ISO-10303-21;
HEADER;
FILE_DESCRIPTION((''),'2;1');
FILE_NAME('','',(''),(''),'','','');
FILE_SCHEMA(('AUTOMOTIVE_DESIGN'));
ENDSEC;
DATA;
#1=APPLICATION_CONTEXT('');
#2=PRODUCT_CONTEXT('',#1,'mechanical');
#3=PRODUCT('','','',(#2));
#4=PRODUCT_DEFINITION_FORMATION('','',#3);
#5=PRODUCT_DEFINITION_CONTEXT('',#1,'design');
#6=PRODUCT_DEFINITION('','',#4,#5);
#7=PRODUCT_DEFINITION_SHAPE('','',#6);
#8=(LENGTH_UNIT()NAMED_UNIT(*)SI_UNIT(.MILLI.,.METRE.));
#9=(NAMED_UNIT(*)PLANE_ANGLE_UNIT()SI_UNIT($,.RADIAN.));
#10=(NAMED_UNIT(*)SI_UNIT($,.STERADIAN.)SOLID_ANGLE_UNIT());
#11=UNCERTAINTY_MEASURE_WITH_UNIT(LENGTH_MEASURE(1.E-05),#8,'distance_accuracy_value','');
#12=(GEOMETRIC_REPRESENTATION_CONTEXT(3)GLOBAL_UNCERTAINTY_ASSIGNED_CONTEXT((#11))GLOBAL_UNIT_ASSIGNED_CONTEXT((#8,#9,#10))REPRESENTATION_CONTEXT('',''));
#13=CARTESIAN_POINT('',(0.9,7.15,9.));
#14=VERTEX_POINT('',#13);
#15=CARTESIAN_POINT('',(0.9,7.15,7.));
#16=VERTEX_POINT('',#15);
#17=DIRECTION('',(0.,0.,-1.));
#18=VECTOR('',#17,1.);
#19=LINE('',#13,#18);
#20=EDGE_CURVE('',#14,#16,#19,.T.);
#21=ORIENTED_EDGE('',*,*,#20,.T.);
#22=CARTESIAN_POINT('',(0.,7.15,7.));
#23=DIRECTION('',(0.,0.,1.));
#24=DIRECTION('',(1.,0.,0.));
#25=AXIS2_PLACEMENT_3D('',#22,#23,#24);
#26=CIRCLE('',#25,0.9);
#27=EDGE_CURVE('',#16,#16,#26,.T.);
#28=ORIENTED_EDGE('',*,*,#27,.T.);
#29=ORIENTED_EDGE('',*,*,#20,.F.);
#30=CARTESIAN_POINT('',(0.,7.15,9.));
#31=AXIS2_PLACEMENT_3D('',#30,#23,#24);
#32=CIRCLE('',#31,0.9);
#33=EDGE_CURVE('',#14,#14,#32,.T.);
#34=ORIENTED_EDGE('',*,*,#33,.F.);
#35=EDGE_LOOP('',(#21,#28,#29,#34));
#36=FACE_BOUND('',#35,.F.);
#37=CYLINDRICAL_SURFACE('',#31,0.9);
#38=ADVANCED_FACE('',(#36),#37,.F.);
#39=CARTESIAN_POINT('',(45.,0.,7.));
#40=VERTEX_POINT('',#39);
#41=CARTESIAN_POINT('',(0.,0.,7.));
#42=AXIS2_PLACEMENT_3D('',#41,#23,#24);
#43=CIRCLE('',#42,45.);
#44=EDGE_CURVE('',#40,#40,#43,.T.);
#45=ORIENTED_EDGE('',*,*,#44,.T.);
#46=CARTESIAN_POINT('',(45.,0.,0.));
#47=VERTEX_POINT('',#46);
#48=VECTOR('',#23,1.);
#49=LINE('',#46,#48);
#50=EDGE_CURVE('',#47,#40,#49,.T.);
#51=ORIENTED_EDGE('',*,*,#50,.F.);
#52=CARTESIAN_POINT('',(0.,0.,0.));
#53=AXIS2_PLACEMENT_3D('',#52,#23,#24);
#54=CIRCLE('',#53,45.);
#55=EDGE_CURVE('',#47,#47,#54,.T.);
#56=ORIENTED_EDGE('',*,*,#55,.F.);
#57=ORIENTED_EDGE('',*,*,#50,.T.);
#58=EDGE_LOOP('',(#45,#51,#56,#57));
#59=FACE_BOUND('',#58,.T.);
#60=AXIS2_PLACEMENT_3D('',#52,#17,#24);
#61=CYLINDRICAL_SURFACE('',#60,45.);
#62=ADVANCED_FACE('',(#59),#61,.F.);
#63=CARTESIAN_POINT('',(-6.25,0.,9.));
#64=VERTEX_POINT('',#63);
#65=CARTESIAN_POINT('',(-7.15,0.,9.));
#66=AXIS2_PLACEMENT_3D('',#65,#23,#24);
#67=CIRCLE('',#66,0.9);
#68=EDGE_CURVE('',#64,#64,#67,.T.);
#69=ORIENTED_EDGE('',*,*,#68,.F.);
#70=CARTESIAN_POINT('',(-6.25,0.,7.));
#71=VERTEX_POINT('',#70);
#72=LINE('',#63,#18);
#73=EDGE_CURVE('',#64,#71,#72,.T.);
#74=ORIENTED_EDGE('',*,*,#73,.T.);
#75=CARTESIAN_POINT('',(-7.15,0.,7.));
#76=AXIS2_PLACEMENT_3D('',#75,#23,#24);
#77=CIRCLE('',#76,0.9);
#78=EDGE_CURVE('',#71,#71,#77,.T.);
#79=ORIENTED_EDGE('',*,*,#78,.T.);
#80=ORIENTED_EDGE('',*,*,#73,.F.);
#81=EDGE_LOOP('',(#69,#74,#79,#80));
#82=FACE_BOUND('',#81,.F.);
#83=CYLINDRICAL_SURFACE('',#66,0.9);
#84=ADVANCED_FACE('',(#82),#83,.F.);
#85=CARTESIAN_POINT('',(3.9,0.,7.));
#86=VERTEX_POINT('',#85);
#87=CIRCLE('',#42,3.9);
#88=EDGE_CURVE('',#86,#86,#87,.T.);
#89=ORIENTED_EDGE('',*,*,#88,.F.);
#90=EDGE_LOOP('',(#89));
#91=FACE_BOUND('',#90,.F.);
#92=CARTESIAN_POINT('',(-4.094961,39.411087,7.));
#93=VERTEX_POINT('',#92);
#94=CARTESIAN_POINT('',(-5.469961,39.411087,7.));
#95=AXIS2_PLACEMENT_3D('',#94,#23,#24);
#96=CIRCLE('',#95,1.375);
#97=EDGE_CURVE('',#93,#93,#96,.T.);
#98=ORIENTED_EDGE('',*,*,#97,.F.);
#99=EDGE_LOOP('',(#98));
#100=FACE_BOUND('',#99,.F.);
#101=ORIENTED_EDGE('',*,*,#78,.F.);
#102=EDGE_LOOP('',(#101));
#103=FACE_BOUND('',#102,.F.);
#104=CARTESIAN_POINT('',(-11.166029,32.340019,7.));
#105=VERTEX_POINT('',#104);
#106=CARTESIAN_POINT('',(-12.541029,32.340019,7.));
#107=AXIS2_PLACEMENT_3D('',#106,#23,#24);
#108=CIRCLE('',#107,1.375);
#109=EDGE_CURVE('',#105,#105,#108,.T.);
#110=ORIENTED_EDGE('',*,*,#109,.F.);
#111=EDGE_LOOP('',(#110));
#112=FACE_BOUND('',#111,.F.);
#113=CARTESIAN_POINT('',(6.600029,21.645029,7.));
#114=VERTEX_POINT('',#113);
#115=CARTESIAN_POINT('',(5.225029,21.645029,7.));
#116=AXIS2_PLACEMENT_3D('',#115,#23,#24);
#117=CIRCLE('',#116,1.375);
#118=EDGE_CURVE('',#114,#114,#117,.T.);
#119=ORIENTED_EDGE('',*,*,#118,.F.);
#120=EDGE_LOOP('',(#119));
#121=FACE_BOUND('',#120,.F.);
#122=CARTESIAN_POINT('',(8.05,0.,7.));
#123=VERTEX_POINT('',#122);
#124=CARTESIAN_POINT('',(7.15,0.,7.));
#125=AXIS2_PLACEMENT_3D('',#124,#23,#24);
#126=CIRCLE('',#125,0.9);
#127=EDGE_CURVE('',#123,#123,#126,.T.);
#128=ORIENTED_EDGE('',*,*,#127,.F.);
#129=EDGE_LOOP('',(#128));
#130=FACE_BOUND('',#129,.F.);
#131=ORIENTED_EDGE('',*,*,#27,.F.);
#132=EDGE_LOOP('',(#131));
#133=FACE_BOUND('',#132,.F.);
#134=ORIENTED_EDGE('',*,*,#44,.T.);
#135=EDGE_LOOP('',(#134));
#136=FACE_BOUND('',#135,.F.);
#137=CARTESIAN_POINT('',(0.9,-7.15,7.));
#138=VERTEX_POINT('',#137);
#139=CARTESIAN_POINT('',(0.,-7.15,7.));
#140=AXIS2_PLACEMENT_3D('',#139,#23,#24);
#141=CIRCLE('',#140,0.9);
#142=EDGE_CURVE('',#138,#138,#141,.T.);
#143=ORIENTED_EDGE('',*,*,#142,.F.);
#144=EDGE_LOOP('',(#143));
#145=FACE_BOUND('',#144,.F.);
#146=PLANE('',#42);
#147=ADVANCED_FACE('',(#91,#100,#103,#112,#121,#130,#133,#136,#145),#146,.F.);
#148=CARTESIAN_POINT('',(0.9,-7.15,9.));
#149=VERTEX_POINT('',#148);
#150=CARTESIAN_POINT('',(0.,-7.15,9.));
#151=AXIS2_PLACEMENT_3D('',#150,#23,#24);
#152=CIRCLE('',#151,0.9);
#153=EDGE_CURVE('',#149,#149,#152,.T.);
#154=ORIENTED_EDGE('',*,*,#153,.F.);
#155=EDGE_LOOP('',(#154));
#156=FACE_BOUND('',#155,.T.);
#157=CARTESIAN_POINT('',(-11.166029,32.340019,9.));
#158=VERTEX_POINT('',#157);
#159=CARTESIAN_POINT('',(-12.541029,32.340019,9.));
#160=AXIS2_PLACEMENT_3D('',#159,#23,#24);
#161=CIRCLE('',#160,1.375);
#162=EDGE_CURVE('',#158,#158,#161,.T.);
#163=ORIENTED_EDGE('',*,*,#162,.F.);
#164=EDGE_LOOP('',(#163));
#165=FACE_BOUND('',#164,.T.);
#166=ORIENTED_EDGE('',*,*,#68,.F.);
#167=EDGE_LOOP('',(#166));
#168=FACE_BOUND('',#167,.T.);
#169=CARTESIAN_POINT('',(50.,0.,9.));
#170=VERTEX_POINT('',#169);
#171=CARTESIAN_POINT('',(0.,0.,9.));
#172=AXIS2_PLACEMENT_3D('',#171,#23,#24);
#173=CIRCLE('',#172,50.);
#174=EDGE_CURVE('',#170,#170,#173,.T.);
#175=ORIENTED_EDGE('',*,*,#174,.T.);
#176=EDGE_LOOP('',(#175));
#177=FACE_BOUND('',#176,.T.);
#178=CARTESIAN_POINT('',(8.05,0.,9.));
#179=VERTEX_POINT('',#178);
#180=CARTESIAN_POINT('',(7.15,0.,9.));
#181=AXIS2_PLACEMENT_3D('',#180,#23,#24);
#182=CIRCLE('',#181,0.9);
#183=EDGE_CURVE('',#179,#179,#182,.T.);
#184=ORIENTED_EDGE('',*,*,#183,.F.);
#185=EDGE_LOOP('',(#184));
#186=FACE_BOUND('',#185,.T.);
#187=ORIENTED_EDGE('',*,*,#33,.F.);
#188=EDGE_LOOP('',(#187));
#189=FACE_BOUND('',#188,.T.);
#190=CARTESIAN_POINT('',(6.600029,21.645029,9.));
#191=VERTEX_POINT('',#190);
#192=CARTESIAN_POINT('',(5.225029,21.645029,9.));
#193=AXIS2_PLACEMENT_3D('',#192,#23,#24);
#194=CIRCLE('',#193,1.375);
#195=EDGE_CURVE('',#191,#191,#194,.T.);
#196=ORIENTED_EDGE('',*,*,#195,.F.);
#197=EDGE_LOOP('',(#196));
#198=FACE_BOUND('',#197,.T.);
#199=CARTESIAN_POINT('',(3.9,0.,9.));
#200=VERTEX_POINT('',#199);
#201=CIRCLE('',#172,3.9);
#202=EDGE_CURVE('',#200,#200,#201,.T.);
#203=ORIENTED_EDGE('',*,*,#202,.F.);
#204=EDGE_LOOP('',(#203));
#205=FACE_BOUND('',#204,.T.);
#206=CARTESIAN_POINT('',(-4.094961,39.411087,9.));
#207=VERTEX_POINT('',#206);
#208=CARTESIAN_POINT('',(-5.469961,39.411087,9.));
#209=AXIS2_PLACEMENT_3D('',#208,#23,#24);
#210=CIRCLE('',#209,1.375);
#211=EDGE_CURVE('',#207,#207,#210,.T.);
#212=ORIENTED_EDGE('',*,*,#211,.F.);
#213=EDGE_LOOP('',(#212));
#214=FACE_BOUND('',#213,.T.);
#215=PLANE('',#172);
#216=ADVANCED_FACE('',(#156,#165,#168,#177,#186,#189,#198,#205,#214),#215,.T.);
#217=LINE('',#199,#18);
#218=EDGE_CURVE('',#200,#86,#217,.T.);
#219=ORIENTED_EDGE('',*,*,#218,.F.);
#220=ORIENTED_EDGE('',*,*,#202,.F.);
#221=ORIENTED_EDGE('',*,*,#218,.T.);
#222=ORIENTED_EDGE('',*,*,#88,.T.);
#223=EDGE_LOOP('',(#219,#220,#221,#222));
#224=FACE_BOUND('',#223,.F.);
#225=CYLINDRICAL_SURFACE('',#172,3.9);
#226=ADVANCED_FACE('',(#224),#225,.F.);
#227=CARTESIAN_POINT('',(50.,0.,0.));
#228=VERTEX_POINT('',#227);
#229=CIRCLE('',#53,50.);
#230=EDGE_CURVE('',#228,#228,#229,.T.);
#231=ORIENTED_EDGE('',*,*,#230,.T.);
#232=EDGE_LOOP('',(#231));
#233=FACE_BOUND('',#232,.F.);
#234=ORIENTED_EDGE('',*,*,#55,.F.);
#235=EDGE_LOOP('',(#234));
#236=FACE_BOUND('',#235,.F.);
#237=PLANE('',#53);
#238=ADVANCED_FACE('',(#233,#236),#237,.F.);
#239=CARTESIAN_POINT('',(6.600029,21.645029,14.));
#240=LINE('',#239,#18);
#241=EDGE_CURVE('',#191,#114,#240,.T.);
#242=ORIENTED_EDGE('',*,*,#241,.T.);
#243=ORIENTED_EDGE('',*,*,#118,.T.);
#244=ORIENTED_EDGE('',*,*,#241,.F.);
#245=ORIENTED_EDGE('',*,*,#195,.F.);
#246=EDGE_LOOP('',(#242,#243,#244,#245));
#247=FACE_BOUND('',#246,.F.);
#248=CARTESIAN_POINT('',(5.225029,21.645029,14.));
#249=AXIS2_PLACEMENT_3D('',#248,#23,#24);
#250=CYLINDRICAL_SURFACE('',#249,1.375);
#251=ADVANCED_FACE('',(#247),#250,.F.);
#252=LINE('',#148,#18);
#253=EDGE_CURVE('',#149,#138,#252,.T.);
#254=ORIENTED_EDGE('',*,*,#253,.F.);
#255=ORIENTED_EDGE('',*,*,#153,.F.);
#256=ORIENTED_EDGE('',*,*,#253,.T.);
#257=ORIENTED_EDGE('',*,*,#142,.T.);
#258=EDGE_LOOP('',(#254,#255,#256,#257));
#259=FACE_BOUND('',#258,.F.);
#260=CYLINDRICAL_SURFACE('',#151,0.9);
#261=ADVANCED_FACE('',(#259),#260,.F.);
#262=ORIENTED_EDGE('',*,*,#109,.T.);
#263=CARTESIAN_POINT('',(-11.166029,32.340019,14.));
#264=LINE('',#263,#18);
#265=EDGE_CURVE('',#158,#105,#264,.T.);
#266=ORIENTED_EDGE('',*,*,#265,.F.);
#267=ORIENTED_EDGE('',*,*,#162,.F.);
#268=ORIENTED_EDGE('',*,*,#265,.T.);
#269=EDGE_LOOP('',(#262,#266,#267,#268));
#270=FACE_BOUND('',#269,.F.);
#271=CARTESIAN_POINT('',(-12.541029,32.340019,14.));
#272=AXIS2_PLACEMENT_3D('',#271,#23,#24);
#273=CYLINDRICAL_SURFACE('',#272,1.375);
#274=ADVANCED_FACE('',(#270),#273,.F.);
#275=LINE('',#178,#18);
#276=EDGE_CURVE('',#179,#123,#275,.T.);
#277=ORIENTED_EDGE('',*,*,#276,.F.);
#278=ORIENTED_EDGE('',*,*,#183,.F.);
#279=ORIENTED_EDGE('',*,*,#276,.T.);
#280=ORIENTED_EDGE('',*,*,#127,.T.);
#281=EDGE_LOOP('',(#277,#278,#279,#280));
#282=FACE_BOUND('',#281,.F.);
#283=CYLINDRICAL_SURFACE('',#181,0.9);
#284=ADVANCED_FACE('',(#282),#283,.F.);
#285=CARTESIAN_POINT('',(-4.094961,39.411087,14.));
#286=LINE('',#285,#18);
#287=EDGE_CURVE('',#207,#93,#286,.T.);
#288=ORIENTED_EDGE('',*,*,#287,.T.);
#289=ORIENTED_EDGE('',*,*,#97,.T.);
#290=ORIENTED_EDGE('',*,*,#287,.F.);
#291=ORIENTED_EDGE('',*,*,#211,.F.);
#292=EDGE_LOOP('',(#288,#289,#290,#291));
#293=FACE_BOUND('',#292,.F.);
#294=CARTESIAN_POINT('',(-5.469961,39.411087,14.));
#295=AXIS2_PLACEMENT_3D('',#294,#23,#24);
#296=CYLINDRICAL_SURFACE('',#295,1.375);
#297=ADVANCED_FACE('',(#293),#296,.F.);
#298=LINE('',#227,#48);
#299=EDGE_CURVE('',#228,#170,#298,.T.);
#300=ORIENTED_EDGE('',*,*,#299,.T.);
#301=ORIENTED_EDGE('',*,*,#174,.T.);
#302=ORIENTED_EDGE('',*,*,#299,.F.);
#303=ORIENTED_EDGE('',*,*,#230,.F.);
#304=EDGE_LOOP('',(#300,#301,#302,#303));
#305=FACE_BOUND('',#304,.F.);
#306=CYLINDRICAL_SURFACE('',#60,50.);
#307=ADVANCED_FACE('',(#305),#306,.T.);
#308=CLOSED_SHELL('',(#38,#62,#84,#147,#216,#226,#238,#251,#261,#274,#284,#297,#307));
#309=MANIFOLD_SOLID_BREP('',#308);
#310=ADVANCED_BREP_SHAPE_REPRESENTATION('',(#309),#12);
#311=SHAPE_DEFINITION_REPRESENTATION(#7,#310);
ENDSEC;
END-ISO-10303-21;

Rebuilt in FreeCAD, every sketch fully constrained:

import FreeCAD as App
import Part
import Sketcher
from FreeCAD import Vector

doc = App.newDocument("Part")
body = doc.addObject("PartDesign::Body", "Body")
body.AllowCompound = True

# Sketch on XY plane
sketch1 = body.newObject("Sketcher::SketchObject", "Sketch")
sketch1.AttachmentSupport = (doc.getObject("XY_Plane"), [""])
sketch1.MapMode = "FlatFace"
sketch1.AttachmentOffset = App.Placement(Vector(0, 0, 14), App.Rotation())
sketch1.addGeometry([
    Part.Circle(Vector(-12.541029, 32.340019, 0), Vector(0, 0, 1), 1.375),
    Part.Circle(Vector(-5.469961, 39.411087, 0), Vector(0, 0, 1), 1.375),
    Part.Circle(Vector(5.225029, 21.645029, 0), Vector(0, 0, 1), 1.375),
], False)
sketch1.addConstraint([
    Sketcher.Constraint("Equal", 0, 1),
    Sketcher.Constraint("Equal", 1, 2),
    Sketcher.Constraint("Diameter", 0, 2.75),
    Sketcher.Constraint("DistanceX", 0, 3, -1, 1, 12.541029),
    Sketcher.Constraint("DistanceY", -1, 1, 0, 3, 32.340019),
    Sketcher.Constraint("DistanceX", 1, 3, -1, 1, 5.469961),
    Sketcher.Constraint("DistanceX", -1, 1, 2, 3, 5.225029),
    Sketcher.Constraint("DistanceY", -1, 1, 2, 3, 21.645029),
    Sketcher.Constraint("DistanceY", 0, 3, 1, 3, 7.071068),
])
pad1 = body.newObject("PartDesign::Pad", "Pad")
pad1.Profile = sketch1
pad1.Length = 10
pad1.Reversed = True
body2 = doc.addObject("PartDesign::Body", "Body001")
body2.AllowCompound = True

# Sketch on XY plane
sketch2 = body2.newObject("Sketcher::SketchObject", "Sketch001")
sketch2.AttachmentSupport = (doc.getObject("XY_Plane001"), [""])
sketch2.MapMode = "FlatFace"
sketch2.AttachmentOffset = App.Placement(Vector(0, 0, 9), App.Rotation())
sketch2.addGeometry([
    Part.Circle(Vector(0, 7.15, 0), Vector(0, 0, 1), 0.9),
    Part.Circle(Vector(-7.15, 0, 0), Vector(0, 0, 1), 0.9),
    Part.Circle(Vector(0, -7.15, 0), Vector(0, 0, 1), 0.9),
    Part.Circle(Vector(7.15, 0, 0), Vector(0, 0, 1), 0.9),
], False)
sketch2.addConstraint([
    Sketcher.Constraint("Equal", 0, 1),
    Sketcher.Constraint("Equal", 1, 2),
    Sketcher.Constraint("Equal", 2, 3),
    Sketcher.Constraint("Symmetric", 0, 3, 2, 3, -1, 1),
    Sketcher.Constraint("Symmetric", 1, 3, 3, 3, -1, 1),
    Sketcher.Constraint("PointOnObject", 0, 3, -2),
    Sketcher.Constraint("PointOnObject", 1, 3, -1),
    Sketcher.Constraint("Diameter", 0, 1.8),
    Sketcher.Constraint("DistanceY", 2, 3, 0, 3, 14.3),
    Sketcher.Constraint("DistanceX", 1, 3, 3, 3, 14.3),
])
pad2 = body2.newObject("PartDesign::Pad", "Pad001")
pad2.Profile = sketch2
pad2.Length = 2
pad2.Reversed = True
body3 = doc.addObject("PartDesign::Body", "Body002")

# Sketch on XY plane
sketch3 = body3.newObject("Sketcher::SketchObject", "Sketch002")
sketch3.AttachmentSupport = (doc.getObject("XY_Plane002"), [""])
sketch3.MapMode = "FlatFace"
sketch3.AttachmentOffset = App.Placement(Vector(0, 0, 9), App.Rotation())
sketch3.addGeometry(Part.Circle(Vector(0, 0, 0), Vector(0, 0, 1), 3.9), False)
sketch3.addConstraint([
    Sketcher.Constraint("Coincident", 0, 3, -1, 1),
    Sketcher.Constraint("Diameter", 0, 7.8),
])
pad3 = body3.newObject("PartDesign::Pad", "Pad002")
pad3.Profile = sketch3
pad3.Length = 2
pad3.Reversed = True
body4 = doc.addObject("PartDesign::Body", "Body003")

# Sketch on XY plane
sketch4 = body4.newObject("Sketcher::SketchObject", "Sketch003")
sketch4.AttachmentSupport = (doc.getObject("XY_Plane003"), [""])
sketch4.MapMode = "FlatFace"
sketch4.addGeometry(Part.Circle(Vector(0, 0, 0), Vector(0, 0, 1), 45), False)
sketch4.addConstraint([
    Sketcher.Constraint("Coincident", 0, 3, -1, 1),
    Sketcher.Constraint("Diameter", 0, 90.0),
])
pad4 = body4.newObject("PartDesign::Pad", "Pad003")
pad4.Profile = sketch4
pad4.Length = 7
body5 = doc.addObject("PartDesign::Body", "Body004")

# Sketch on XY plane
sketch5 = body5.newObject("Sketcher::SketchObject", "Sketch004")
sketch5.AttachmentSupport = (doc.getObject("XY_Plane004"), [""])
sketch5.MapMode = "FlatFace"
sketch5.addGeometry(Part.Circle(Vector(0, 0, 0), Vector(0, 0, 1), 50), False)
sketch5.addConstraint([
    Sketcher.Constraint("Coincident", 0, 3, -1, 1),
    Sketcher.Constraint("Diameter", 0, 100.0),
])
pad5 = body5.newObject("PartDesign::Pad", "Pad004")
pad5.Profile = sketch5
pad5.Length = 9
doc.recompute()

boolean = body5.newObject("PartDesign::Boolean", "Boolean")
boolean.Type = "Cut"
boolean.addObjects([body4])
doc.recompute()

boolean2 = body5.newObject("PartDesign::Boolean", "Boolean001")
boolean2.Type = "Cut"
boolean2.addObjects([body3])
doc.recompute()

boolean3 = body5.newObject("PartDesign::Boolean", "Boolean002")
boolean3.Type = "Cut"
boolean3.addObjects([body2])
doc.recompute()

boolean4 = body5.newObject("PartDesign::Boolean", "Boolean003")
boolean4.Type = "Cut"
boolean4.addObjects([body])

doc.recompute()
